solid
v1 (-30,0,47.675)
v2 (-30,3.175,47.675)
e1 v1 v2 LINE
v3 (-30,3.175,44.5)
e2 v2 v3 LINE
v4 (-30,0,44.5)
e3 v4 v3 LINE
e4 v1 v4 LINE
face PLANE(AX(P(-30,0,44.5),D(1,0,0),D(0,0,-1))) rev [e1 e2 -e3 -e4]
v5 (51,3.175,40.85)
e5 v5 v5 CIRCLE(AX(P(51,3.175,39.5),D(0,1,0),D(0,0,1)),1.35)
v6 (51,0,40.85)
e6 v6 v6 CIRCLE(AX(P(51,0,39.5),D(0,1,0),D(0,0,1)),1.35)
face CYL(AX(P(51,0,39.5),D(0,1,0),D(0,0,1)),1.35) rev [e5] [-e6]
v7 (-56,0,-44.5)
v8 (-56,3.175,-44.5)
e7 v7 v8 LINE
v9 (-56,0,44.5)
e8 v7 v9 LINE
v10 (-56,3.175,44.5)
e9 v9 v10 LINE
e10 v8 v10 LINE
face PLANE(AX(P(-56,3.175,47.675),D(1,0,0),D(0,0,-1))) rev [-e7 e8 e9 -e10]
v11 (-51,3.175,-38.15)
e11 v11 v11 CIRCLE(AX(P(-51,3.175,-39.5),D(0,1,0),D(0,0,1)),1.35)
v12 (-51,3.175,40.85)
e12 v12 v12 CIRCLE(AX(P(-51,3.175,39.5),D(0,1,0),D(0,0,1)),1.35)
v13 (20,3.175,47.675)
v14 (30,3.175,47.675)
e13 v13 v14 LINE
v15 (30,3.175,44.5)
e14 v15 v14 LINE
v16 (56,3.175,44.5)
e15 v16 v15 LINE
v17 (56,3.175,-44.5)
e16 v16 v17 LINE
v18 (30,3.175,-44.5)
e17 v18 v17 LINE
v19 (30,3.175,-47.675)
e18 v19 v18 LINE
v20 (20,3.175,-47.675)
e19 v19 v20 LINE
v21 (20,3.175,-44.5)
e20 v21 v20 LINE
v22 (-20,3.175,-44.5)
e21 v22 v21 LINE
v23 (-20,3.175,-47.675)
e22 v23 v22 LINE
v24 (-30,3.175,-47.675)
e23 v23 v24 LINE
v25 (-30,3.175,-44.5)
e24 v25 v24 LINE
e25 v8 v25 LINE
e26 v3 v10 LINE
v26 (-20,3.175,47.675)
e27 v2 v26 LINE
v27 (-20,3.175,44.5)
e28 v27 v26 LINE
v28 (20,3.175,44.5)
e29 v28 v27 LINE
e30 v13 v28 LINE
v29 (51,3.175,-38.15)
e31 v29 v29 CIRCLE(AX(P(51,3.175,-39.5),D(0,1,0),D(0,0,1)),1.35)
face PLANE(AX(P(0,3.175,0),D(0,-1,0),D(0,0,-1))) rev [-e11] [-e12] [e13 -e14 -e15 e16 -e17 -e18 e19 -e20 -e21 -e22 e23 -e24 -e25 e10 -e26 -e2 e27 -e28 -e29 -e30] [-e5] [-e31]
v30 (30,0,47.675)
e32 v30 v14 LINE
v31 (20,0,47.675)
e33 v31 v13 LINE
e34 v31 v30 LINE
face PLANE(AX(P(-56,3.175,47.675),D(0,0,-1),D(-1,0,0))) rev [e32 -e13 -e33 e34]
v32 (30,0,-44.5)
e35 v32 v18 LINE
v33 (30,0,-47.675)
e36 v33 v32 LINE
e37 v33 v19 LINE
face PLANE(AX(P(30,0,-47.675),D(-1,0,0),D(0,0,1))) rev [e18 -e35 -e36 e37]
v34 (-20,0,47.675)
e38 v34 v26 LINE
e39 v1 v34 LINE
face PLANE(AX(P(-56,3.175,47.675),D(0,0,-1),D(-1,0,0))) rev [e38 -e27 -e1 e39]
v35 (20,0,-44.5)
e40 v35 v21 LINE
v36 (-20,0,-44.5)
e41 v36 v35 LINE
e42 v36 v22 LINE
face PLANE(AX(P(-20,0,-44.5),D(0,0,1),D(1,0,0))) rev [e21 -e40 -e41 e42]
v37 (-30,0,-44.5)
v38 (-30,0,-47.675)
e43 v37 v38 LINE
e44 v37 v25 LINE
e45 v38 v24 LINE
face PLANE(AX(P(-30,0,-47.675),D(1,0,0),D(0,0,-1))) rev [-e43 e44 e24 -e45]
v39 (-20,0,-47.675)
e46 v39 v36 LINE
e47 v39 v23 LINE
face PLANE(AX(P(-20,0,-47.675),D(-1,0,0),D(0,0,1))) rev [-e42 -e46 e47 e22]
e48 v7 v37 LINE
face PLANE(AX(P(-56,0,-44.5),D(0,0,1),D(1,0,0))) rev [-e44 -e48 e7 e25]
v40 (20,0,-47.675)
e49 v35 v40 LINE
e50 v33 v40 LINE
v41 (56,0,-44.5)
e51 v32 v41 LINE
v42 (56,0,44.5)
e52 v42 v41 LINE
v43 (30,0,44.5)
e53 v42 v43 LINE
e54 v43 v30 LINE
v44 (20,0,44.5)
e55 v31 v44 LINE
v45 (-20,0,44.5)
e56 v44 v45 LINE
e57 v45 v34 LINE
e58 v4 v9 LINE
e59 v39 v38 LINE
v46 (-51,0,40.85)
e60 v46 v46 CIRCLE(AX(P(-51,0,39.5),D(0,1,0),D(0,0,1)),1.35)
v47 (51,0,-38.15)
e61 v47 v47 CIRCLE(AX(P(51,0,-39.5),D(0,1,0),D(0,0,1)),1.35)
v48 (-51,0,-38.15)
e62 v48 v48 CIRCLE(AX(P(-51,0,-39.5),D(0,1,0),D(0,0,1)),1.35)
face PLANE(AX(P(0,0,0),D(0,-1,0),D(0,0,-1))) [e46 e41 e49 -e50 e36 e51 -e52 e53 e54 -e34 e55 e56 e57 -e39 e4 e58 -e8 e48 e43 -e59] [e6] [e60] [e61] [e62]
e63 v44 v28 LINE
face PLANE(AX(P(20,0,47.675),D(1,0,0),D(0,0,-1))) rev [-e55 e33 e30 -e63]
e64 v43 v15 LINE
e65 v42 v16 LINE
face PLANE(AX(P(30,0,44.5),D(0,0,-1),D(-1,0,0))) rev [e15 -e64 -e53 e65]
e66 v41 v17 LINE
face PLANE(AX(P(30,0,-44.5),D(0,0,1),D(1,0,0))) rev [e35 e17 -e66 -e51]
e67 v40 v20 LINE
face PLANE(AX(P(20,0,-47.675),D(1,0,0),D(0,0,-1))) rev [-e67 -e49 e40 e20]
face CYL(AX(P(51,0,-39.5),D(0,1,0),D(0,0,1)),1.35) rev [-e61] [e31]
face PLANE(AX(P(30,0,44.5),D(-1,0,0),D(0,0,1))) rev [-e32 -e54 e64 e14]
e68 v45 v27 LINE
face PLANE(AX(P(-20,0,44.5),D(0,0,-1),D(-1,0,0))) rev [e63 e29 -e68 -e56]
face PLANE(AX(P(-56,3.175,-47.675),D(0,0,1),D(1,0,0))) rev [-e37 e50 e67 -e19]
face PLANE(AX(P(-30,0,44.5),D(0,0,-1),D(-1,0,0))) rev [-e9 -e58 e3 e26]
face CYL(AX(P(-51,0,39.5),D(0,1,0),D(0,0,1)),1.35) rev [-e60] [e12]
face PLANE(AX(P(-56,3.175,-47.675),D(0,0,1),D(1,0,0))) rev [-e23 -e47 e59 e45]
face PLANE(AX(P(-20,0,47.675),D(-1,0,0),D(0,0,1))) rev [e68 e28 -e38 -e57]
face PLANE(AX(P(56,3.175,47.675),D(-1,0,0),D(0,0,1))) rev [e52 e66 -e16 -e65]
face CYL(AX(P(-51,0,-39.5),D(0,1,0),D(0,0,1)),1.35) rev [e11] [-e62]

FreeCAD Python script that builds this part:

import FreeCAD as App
import Part
import Sketcher
Q = App.Units.Quantity


def add_polygon(sketch, points):
    """Adds a closed chain of lines whose ends are joined by coincident constraints."""
    first, n = sketch.GeometryCount, len(points)
    for a, b in zip(points, points[1:] + points[:1]):
        sketch.addGeometry(Part.LineSegment(App.Vector(*a, 0), App.Vector(*b, 0)), False)
    for i in range(n):
        sketch.addConstraint(Sketcher.Constraint("Coincident", first + i, 2, first + (i + 1) % n, 1))

doc = App.newDocument("Part")
body = doc.addObject("PartDesign::Body", "Body")

# Sketch on XZ plane
sketch1 = body.newObject("Sketcher::SketchObject", "Sketch")
sketch1.AttachmentSupport = (doc.getObject("XZ_Plane"), [""])
sketch1.MapMode = "FlatFace"
add_polygon(sketch1, [(-56, -48), (-56, 48), (56, 48), (56, -48)])  # lines 0-3
sketch1.addConstraint([
    Sketcher.Constraint("Vertical", 0),
    Sketcher.Constraint("Horizontal", 1),
    Sketcher.Constraint("Vertical", 2),
    Sketcher.Constraint("Horizontal", 3),
    Sketcher.Constraint("Symmetric", 0, 2, 2, 2, -1, 1),
    Sketcher.Constraint("DistanceX", 1, 1, 1, 2, Q("112 mm")),
    Sketcher.Constraint("DistanceY", 0, 1, 0, 2, Q("95.35 mm")),
])
pad1 = body.newObject("PartDesign::Pad", "Pad")
pad1.Profile = sketch1
pad1.Length = 3.175
pad1.Reversed = True

# Sketch on XZ plane
sketch2 = body.newObject("Sketcher::SketchObject", "Sketch001")
sketch2.AttachmentSupport = (doc.getObject("XZ_Plane"), [""])
sketch2.MapMode = "FlatFace"
sketch2.AttachmentOffset = App.Placement(App.Vector(0, 0, -3.175), App.Rotation())
add_polygon(sketch2, [(-20, -47.7), (-20, -44.5), (20, -44.5), (20, -47.7)])  # lines 0-3
add_polygon(sketch2, [(30, -47.7), (30, -44.5), (56, -44.5), (56, -47.7)])  # lines 4-7
add_polygon(sketch2, [(-56, -47.7), (-56, -44.5), (-30, -44.5), (-30, -47.7)])  # lines 8-11
add_polygon(sketch2, [(-20, 44.5), (-20, 47.7), (20, 47.7), (20, 44.5)])  # lines 12-15
add_polygon(sketch2, [(-56, 44.5), (-56, 47.7), (-30, 47.7), (-30, 44.5)])  # lines 16-19
add_polygon(sketch2, [(30, 44.5), (30, 47.7), (56, 47.7), (56, 44.5)])  # lines 20-23
sketch2.addConstraint([
    Sketcher.Constraint("Vertical", 0),
    Sketcher.Constraint("Horizontal", 1),
    Sketcher.Constraint("Vertical", 2),
    Sketcher.Constraint("Horizontal", 3),
    Sketcher.Constraint("Vertical", 4),
    Sketcher.Constraint("Horizontal", 5),
    Sketcher.Constraint("Vertical", 6),
    Sketcher.Constraint("Horizontal", 7),
    Sketcher.Constraint("Vertical", 8),
    Sketcher.Constraint("Horizontal", 9),
    Sketcher.Constraint("Vertical", 10),
    Sketcher.Constraint("Horizontal", 11),
    Sketcher.Constraint("Vertical", 12),
    Sketcher.Constraint("Horizontal", 13),
    Sketcher.Constraint("Vertical", 14),
    Sketcher.Constraint("Horizontal", 15),
    Sketcher.Constraint("Vertical", 16),
    Sketcher.Constraint("Horizontal", 17),
    Sketcher.Constraint("Vertical", 18),
    Sketcher.Constraint("Horizontal", 19),
    Sketcher.Constraint("Vertical", 20),
    Sketcher.Constraint("Horizontal", 21),
    Sketcher.Constraint("Vertical", 22),
    Sketcher.Constraint("Horizontal", 23),
    Sketcher.Constraint("Symmetric", 2, 2, 12, 2, -1, 1),
    Sketcher.Constraint("Symmetric", 0, 2, 14, 2, -1, 1),
    Sketcher.Constraint("Symmetric", 6, 2, 16, 2, -1, 1),
    Sketcher.Constraint("Symmetric", 4, 2, 18, 2, -1, 1),
    Sketcher.Constraint("Symmetric", 10, 2, 20, 2, -1, 1),
    Sketcher.Constraint("Symmetric", 8, 2, 22, 2, -1, 1),
    Sketcher.Constraint("Symmetric", 5, 2, 8, 2, -2),
    Sketcher.Constraint("Symmetric", 7, 2, 10, 2, -2),
    Sketcher.Constraint("Horizontal", 1, 2, 4, 2),
    Sketcher.Constraint("Horizontal", 3, 2, 6, 2),
    Sketcher.Constraint("Vertical", 3, 2, 12, 2),
    Sketcher.Constraint("DistanceX", 1, 1, 1, 2, Q("40 mm")),
    Sketcher.Constraint("DistanceX", 5, 1, 5, 2, Q("26 mm")),
    Sketcher.Constraint("DistanceX", -1, 1, 4, 2, Q("30 mm")),
    Sketcher.Constraint("DistanceY", 1, 2, 14, 2, Q("89 mm")),
    Sketcher.Constraint("DistanceY", 0, 1, 0, 2, Q("3.175 mm")),
])
pocket1 = body.newObject("PartDesign::Pocket", "Pocket")
pocket1.Profile = sketch2
pocket1.Type = "ThroughAll"
pocket1.Reversed = True

# Sketch on XZ plane
sketch3 = body.newObject("Sketcher::SketchObject", "Sketch002")
sketch3.AttachmentSupport = (doc.getObject("XZ_Plane"), [""])
sketch3.MapMode = "FlatFace"
sketch3.AttachmentOffset = App.Placement(App.Vector(0, 0, -3.175), App.Rotation())
sketch3.addGeometry([
    Part.Circle(App.Vector(-51, -39.5, 0), App.Vector(0, 0, 1), 1.4),
    Part.Circle(App.Vector(51, -39.5, 0), App.Vector(0, 0, 1), 1.4),
    Part.Circle(App.Vector(-51, 39.5, 0), App.Vector(0, 0, 1), 1.4),
    Part.Circle(App.Vector(51, 39.5, 0), App.Vector(0, 0, 1), 1.4),
], False)
sketch3.addConstraint([
    Sketcher.Constraint("Equal", 0, 1),
    Sketcher.Constraint("Equal", 1, 2),
    Sketcher.Constraint("Equal", 2, 3),
    Sketcher.Constraint("Symmetric", 1, 3, 2, 3, -1, 1),
    Sketcher.Constraint("Symmetric", 0, 3, 3, 3, -1, 1),
    Sketcher.Constraint("Symmetric", 0, 3, 1, 3, -2),
    Sketcher.Constraint("Diameter", 0, Q("2.7 mm")),
    Sketcher.Constraint("DistanceX", 0, 3, -1, 1, Q("51 mm")),
    Sketcher.Constraint("DistanceY", 0, 3, 2, 3, Q("79 mm")),
])
pocket2 = body.newObject("PartDesign::Pocket", "Pocket001")
pocket2.Profile = sketch3
pocket2.Type = "ThroughAll"
pocket2.Reversed = True

doc.recompute()
